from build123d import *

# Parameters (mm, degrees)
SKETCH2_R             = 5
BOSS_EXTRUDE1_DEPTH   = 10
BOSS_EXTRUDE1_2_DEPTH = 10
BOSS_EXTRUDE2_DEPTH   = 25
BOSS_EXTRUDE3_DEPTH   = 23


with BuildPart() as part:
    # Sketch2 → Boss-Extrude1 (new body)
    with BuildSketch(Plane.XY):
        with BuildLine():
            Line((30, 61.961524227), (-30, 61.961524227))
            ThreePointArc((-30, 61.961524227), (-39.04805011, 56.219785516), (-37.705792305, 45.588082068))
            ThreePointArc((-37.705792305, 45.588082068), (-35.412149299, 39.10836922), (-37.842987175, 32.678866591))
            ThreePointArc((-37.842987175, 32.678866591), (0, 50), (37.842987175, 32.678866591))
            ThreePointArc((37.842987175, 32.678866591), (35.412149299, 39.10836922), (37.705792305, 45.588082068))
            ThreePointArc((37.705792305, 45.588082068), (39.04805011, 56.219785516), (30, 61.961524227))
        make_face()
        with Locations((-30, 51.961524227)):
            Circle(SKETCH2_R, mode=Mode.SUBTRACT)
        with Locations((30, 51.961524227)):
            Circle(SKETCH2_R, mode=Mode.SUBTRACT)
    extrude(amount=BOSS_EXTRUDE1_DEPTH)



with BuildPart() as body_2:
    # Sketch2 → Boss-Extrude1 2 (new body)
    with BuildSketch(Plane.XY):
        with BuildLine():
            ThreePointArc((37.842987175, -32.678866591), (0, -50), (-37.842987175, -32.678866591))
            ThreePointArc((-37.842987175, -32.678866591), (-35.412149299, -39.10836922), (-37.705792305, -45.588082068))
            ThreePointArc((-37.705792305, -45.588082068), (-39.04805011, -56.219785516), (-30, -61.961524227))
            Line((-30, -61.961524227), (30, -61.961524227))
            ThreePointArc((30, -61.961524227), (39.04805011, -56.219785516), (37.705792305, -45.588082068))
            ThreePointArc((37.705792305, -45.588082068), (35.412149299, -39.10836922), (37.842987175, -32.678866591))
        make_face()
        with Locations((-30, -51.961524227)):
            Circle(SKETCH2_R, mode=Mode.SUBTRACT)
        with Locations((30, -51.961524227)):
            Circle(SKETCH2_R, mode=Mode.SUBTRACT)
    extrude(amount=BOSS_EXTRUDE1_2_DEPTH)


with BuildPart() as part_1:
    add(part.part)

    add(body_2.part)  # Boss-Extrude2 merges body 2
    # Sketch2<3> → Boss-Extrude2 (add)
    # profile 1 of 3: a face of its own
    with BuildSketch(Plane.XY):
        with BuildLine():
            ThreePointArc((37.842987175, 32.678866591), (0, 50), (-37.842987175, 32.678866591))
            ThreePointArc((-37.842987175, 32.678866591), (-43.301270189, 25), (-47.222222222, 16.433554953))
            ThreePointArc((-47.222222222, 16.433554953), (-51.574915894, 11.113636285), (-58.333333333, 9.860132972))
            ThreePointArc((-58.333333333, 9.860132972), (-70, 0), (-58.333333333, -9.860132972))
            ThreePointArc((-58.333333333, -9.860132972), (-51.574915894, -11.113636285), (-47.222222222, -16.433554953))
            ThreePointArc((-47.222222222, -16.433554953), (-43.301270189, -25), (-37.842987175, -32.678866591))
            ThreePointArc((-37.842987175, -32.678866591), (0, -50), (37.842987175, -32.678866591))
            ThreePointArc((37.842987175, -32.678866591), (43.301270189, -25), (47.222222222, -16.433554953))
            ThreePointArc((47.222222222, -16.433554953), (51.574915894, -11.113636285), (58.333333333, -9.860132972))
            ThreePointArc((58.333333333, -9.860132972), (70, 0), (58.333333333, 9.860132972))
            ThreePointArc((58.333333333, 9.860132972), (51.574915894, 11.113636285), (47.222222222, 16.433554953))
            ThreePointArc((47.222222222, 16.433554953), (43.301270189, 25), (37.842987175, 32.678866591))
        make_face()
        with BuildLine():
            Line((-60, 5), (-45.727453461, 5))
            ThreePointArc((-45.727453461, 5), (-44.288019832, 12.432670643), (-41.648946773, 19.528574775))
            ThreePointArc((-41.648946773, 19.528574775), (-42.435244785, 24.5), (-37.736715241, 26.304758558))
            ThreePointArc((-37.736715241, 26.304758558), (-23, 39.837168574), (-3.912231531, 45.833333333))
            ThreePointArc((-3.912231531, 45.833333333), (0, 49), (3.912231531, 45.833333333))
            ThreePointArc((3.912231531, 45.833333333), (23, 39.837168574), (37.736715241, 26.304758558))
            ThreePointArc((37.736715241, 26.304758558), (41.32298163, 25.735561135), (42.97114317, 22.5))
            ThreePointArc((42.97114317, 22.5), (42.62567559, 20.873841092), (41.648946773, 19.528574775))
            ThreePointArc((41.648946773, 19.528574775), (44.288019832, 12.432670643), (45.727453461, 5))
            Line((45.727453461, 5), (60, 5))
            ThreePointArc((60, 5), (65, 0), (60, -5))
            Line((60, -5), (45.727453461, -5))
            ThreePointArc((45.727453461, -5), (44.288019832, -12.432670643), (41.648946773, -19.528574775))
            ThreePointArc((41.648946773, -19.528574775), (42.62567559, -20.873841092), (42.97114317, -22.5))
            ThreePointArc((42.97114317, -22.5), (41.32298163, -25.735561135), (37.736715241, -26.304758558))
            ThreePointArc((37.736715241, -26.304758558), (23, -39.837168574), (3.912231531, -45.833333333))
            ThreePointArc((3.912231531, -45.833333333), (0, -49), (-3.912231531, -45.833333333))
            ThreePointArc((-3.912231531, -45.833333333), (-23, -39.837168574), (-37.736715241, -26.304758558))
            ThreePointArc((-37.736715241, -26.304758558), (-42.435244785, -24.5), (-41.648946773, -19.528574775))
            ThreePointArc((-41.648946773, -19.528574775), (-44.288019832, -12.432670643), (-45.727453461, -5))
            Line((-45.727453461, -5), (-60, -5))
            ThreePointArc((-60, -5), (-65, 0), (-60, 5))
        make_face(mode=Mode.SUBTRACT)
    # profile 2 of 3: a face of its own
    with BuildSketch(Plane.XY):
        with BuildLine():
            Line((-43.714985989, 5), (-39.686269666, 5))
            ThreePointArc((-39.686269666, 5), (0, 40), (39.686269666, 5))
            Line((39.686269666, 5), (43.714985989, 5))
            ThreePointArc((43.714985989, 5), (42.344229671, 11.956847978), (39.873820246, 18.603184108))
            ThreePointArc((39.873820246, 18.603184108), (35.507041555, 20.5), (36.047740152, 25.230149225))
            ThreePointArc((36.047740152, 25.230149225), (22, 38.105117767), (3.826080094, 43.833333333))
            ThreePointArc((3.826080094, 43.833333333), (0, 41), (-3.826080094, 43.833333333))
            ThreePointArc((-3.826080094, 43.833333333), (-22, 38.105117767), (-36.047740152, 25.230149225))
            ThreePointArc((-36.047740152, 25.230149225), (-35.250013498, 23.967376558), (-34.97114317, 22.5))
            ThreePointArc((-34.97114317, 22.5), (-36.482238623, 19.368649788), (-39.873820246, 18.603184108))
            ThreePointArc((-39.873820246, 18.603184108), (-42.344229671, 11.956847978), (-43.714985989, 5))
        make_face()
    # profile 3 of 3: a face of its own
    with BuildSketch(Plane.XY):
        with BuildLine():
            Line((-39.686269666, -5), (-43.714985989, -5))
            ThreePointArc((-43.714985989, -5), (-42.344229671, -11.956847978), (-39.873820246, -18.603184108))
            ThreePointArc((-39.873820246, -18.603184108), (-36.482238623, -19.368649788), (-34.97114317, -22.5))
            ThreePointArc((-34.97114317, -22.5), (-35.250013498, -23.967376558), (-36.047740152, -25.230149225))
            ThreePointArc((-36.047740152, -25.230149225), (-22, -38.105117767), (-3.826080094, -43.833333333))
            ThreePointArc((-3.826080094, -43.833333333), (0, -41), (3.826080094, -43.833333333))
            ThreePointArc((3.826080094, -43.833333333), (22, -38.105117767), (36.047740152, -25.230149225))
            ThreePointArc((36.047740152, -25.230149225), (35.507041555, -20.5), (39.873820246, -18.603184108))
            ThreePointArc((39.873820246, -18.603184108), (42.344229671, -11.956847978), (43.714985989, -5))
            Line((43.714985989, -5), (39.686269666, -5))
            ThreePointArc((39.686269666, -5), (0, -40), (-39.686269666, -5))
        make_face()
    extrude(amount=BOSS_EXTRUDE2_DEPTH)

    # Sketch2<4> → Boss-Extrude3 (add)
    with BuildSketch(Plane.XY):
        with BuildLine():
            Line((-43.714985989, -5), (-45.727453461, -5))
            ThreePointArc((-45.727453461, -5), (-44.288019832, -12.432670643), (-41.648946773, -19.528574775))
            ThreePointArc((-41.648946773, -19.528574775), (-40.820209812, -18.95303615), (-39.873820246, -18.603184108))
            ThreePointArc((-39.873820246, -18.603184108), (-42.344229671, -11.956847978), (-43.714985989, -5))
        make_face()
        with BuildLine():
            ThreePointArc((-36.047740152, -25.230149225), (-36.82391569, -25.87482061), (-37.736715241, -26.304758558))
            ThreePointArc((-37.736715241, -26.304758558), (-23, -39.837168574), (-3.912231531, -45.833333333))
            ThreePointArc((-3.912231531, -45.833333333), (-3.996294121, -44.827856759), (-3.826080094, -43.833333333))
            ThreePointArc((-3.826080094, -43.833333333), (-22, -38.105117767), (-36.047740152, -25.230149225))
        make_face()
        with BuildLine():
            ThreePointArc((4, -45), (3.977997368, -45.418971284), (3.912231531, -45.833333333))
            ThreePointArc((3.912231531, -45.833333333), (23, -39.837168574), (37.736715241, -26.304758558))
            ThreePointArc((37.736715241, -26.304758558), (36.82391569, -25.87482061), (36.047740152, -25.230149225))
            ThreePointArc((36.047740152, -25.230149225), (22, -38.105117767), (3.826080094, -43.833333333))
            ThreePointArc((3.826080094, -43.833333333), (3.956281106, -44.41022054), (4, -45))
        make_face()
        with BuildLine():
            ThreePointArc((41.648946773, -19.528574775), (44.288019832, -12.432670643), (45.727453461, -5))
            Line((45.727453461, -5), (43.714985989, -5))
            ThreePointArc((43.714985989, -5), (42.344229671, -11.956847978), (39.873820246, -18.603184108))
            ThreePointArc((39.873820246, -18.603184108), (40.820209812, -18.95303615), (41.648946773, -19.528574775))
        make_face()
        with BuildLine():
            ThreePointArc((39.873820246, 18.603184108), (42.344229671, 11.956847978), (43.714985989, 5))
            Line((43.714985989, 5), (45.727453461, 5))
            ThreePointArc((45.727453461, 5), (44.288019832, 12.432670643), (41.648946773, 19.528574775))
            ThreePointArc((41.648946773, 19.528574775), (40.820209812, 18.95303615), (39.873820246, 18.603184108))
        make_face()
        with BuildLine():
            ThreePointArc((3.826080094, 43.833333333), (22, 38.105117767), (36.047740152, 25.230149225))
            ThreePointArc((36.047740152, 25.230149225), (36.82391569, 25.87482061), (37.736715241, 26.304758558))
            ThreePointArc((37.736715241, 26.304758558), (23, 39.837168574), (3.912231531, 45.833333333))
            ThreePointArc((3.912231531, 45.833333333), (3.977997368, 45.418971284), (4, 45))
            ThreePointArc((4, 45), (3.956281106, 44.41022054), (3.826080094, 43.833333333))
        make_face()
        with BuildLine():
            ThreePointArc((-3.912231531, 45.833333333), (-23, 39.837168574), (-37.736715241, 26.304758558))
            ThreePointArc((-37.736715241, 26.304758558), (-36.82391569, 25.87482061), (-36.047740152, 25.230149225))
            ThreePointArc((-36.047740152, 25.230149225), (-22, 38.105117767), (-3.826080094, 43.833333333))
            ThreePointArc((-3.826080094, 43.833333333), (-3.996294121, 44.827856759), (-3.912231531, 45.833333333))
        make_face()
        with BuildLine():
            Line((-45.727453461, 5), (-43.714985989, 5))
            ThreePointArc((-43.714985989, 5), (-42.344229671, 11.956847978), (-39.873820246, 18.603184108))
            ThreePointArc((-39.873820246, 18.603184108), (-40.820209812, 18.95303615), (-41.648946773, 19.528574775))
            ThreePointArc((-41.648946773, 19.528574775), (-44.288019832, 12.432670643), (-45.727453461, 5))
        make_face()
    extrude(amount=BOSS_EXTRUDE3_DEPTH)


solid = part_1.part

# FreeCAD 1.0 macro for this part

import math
import FreeCAD as App
import Part
import Sketcher
from FreeCAD import Vector

doc = App.newDocument("Part")
body = doc.addObject("PartDesign::Body", "Body")

sketch1 = body.newObject("Sketcher::SketchObject", "Sketch")
sketch1.AttachmentSupport = (doc.getObject("XY_Plane"), [""])
sketch1.MapMode = "FlatFace"
sketch1.addGeometry(Part.LineSegment(Vector(30, 62, 0), Vector(-30, 62, 0)), False)
sketch1.addGeometry(Part.ArcOfCircle(Part.Circle(Vector(-30, 52, 0), Vector(0, 0, 1), 10), math.radians(90), math.radians(220)), False)
sketch1.addGeometry(Part.ArcOfCircle(Part.Circle(Vector(-45, 39, 0), Vector(0, 0, 1), 10), math.radians(-41), math.radians(40)), False)
sketch1.addGeometry(Part.ArcOfCircle(Part.Circle(Vector(0, 0, 0), Vector(0, 0, 1), 50), math.radians(41), math.radians(139)), False)
sketch1.addGeometry(Part.ArcOfCircle(Part.Circle(Vector(45, 39, 0), Vector(0, 0, 1), 10), math.radians(140), math.radians(221)), False)
sketch1.addGeometry(Part.ArcOfCircle(Part.Circle(Vector(30, 52, 0), Vector(0, 0, 1), 10), math.radians(-40), math.radians(90)), False)
sketch1.addGeometry(Part.Circle(Vector(-30, 52, 0), Vector(0, 0, 1), 5), False)
sketch1.addGeometry(Part.Circle(Vector(30, 52, 0), Vector(0, 0, 1), 5), False)
sketch1.addConstraint(Sketcher.Constraint("Tangent", 0, 2, 1, 1))
sketch1.addConstraint(Sketcher.Constraint("Tangent", 1, 2, 2, 2))
sketch1.addConstraint(Sketcher.Constraint("Tangent", 2, 1, 3, 2))
sketch1.addConstraint(Sketcher.Constraint("Tangent", 3, 1, 4, 2))
sketch1.addConstraint(Sketcher.Constraint("Tangent", 4, 1, 5, 1))
sketch1.addConstraint(Sketcher.Constraint("Tangent", 5, 2, 0, 1))
sketch1.addConstraint(Sketcher.Constraint("Horizontal", 0))
sketch1.addConstraint(Sketcher.Constraint("Coincident", 3, 3, -1, 1))
sketch1.addConstraint(Sketcher.Constraint("Coincident", 6, 3, 1, 3))
sketch1.addConstraint(Sketcher.Constraint("Coincident", 7, 3, 5, 3))
sketch1.addConstraint(Sketcher.Constraint("Equal", 1, 2))
sketch1.addConstraint(Sketcher.Constraint("Equal", 2, 4))
sketch1.addConstraint(Sketcher.Constraint("Equal", 4, 5))
sketch1.addConstraint(Sketcher.Constraint("Equal", 6, 7))
sketch1.addConstraint(Sketcher.Constraint("Horizontal", 2, 3, 4, 3))
sketch1.addConstraint(Sketcher.Constraint("Diameter", 6, 10.0))
sketch1.addConstraint(Sketcher.Constraint("Radius", 1, 10.0))
sketch1.addConstraint(Sketcher.Constraint("Radius", 3, 50.0))
sketch1.addConstraint(Sketcher.Constraint("DistanceX", 0, 2, 0, 1, 60.0))
sketch1.addConstraint(Sketcher.Constraint("DistanceY", -1, 1, 2, 3, 39.21464))
pad1 = body.newObject("PartDesign::Pad", "Pad")
pad1.Profile = sketch1
pad1.Length = 10
body2 = doc.addObject("PartDesign::Body", "Body001")

sketch2 = body2.newObject("Sketcher::SketchObject", "Sketch001")
sketch2.AttachmentSupport = (doc.getObject("XY_Plane001"), [""])
sketch2.MapMode = "FlatFace"
sketch2.addGeometry(Part.ArcOfCircle(Part.Circle(Vector(0, 0, 0), Vector(0, 0, 1), 50), math.radians(-139), math.radians(-41)), False)
sketch2.addGeometry(Part.ArcOfCircle(Part.Circle(Vector(-45, -39, 0), Vector(0, 0, 1), 10), math.radians(-40), math.radians(41)), False)
sketch2.addGeometry(Part.ArcOfCircle(Part.Circle(Vector(-30, -52, 0), Vector(0, 0, 1), 10), math.radians(140), math.radians(270)), False)
sketch2.addGeometry(Part.LineSegment(Vector(-30, -62, 0), Vector(30, -62, 0)), False)
sketch2.addGeometry(Part.ArcOfCircle(Part.Circle(Vector(30, -52, 0), Vector(0, 0, 1), 10), math.radians(-90), math.radians(40)), False)
sketch2.addGeometry(Part.ArcOfCircle(Part.Circle(Vector(45, -39, 0), Vector(0, 0, 1), 10), math.radians(139), math.radians(220)), False)
sketch2.addGeometry(Part.Circle(Vector(-30, -52, 0), Vector(0, 0, 1), 5), False)
sketch2.addGeometry(Part.Circle(Vector(30, -52, 0), Vector(0, 0, 1), 5), False)
sketch2.addConstraint(Sketcher.Constraint("Tangent", 0, 1, 1, 2))
sketch2.addConstraint(Sketcher.Constraint("Tangent", 1, 1, 2, 1))
sketch2.addConstraint(Sketcher.Constraint("Tangent", 2, 2, 3, 1))
sketch2.addConstraint(Sketcher.Constraint("Tangent", 3, 2, 4, 1))
sketch2.addConstraint(Sketcher.Constraint("Tangent", 4, 2, 5, 2))
sketch2.addConstraint(Sketcher.Constraint("Tangent", 5, 1, 0, 2))
sketch2.addConstraint(Sketcher.Constraint("Horizontal", 3))
sketch2.addConstraint(Sketcher.Constraint("Coincident", 0, 3, -1, 1))
sketch2.addConstraint(Sketcher.Constraint("Coincident", 6, 3, 2, 3))
sketch2.addConstraint(Sketcher.Constraint("Coincident", 7, 3, 4, 3))
sketch2.addConstraint(Sketcher.Constraint("Equal", 1, 2))
sketch2.addConstraint(Sketcher.Constraint("Equal", 2, 4))
sketch2.addConstraint(Sketcher.Constraint("Equal", 4, 5))
sketch2.addConstraint(Sketcher.Constraint("Equal", 6, 7))
sketch2.addConstraint(Sketcher.Constraint("Horizontal", 1, 3, 5, 3))
sketch2.addConstraint(Sketcher.Constraint("Diameter", 6, 10.0))
sketch2.addConstraint(Sketcher.Constraint("Radius", 0, 50.0))
sketch2.addConstraint(Sketcher.Constraint("Radius", 1, 10.0))
sketch2.addConstraint(Sketcher.Constraint("DistanceX", 3, 1, 3, 2, 60.0))
sketch2.addConstraint(Sketcher.Constraint("DistanceY", 1, 3, -1, 1, 39.21464))
pad2 = body2.newObject("PartDesign::Pad", "Pad001")
pad2.Profile = sketch2
pad2.Length = 10
body.AllowCompound = True
doc.recompute()

boolean = body.newObject("PartDesign::Boolean", "Boolean")
boolean.Type = "Fuse"
boolean.addObjects([body2])

sketch3 = body.newObject("Sketcher::SketchObject", "Sketch002")
sketch3.AttachmentSupport = (doc.getObject("XY_Plane"), [""])
sketch3.MapMode = "FlatFace"
sketch3.addGeometry(Part.ArcOfCircle(Part.Circle(Vector(0, 0, 0), Vector(0, 0, 1), 50), math.radians(41), math.radians(139)), False)
sketch3.addGeometry(Part.ArcOfCircle(Part.Circle(Vector(0, 0, 0), Vector(0, 0, 1), 50), math.radians(139), math.radians(161)), False)
sketch3.addGeometry(Part.ArcOfCircle(Part.Circle(Vector(-56.7, 19.7, 0), Vector(0, 0, 1), 10), math.radians(-100), math.radians(-19)), False)
sketch3.addGeometry(Part.ArcOfCircle(Part.Circle(Vector(-60, 0, 0), Vector(0, 0, 1), 10), math.radians(80), math.radians(280)), False)
sketch3.addGeometry(Part.ArcOfCircle(Part.Circle(Vector(-56.7, -19.7, 0), Vector(0, 0, 1), 10), math.radians(19), math.radians(100)), False)
sketch3.addGeometry(Part.ArcOfCircle(Part.Circle(Vector(0, 0, 0), Vector(0, 0, 1), 50), math.radians(-161), math.radians(-139)), False)
sketch3.addGeometry(Part.ArcOfCircle(Part.Circle(Vector(0, 0, 0), Vector(0, 0, 1), 50), math.radians(-139), math.radians(-41)), False)
sketch3.addGeometry(Part.ArcOfCircle(Part.Circle(Vector(0, 0, 0), Vector(0, 0, 1), 50), math.radians(-41), math.radians(-19)), False)
sketch3.addGeometry(Part.ArcOfCircle(Part.Circle(Vector(56.7, -19.7, 0), Vector(0, 0, 1), 10), math.radians(80), math.radians(161)), False)
sketch3.addGeometry(Part.ArcOfCircle(Part.Circle(Vector(60, 0, 0), Vector(0, 0, 1), 10), math.radians(-100), math.radians(100)), False)
sketch3.addGeometry(Part.ArcOfCircle(Part.Circle(Vector(56.7, 19.7, 0), Vector(0, 0, 1), 10), math.radians(-161), math.radians(-80)), False)
sketch3.addGeometry(Part.ArcOfCircle(Part.Circle(Vector(0, 0, 0), Vector(0, 0, 1), 50), math.radians(19), math.radians(41)), False)
sketch3.addGeometry(Part.ArcOfCircle(Part.Circle(Vector(-60, 0, 0), Vector(0, 0, 1), 5), math.radians(90), math.radians(270)), False)
sketch3.addGeometry(Part.LineSegment(Vector(-60, 5, 0), Vector(-45.7, 5, 0)), False)
sketch3.addGeometry(Part.ArcOfCircle(Part.Circle(Vector(0, 0, 0), Vector(0, 0, 1), 46), math.radians(154.88), math.radians(173.76)), False)
sketch3.addGeometry(Part.ArcOfCircle(Part.Circle(Vector(-39, 22.5, 0), Vector(0, 0, 1), 4), math.radians(72), math.radians(228)), False)
sketch3.addGeometry(Part.ArcOfCircle(Part.Circle(Vector(0, 0, 0), Vector(0, 0, 1), 46), math.radians(95), math.radians(145)), False)
sketch3.addGeometry(Part.ArcOfCircle(Part.Circle(Vector(0, 45, 0), Vector(0, 0, 1), 4), math.radians(12), math.radians(168)), False)
sketch3.addGeometry(Part.ArcOfCircle(Part.Circle(Vector(0, 0, 0), Vector(0, 0, 1), 46), math.radians(35), math.radians(85)), False)
sketch3.addGeometry(Part.ArcOfCircle(Part.Circle(Vector(39, 22.5, 0), Vector(0, 0, 1), 4), math.radians(0), math.radians(108)), False)
sketch3.addGeometry(Part.ArcOfCircle(Part.Circle(Vector(39, 22.5, 0), Vector(0, 0, 1), 4), math.radians(-48), math.radians(0)), False)
sketch3.addGeometry(Part.ArcOfCircle(Part.Circle(Vector(0, 0, 0), Vector(0, 0, 1), 46), math.radians(6.24), math.radians(25.12)), False)
sketch3.addGeometry(Part.LineSegment(Vector(45.7, 5, 0), Vector(60, 5, 0)), False)
sketch3.addGeometry(Part.ArcOfCircle(Part.Circle(Vector(60, 0, 0), Vector(0, 0, 1), 5), math.radians(-90), math.radians(90)), False)
sketch3.addGeometry(Part.LineSegment(Vector(60, -5, 0), Vector(45.7, -5, 0)), False)
sketch3.addGeometry(Part.ArcOfCircle(Part.Circle(Vector(0, 0, 0), Vector(0, 0, 1), 46), math.radians(-25.12), math.radians(-6.24)), False)
sketch3.addGeometry(Part.ArcOfCircle(Part.Circle(Vector(39, -22.5, 0), Vector(0, 0, 1), 4), math.radians(0), math.radians(48)), False)
sketch3.addGeometry(Part.ArcOfCircle(Part.Circle(Vector(39, -22.5, 0), Vector(0, 0, 1), 4), math.radians(-108), math.radians(0)), False)
sketch3.addGeometry(Part.ArcOfCircle(Part.Circle(Vector(0, 0, 0), Vector(0, 0, 1), 46), math.radians(-85), math.radians(-35)), False)
sketch3.addGeometry(Part.ArcOfCircle(Part.Circle(Vector(0, -45, 0), Vector(0, 0, 1), 4), math.radians(-168), math.radians(-12)), False)
sketch3.addGeometry(Part.ArcOfCircle(Part.Circle(Vector(0, 0, 0), Vector(0, 0, 1), 46), math.radians(-145), math.radians(-95)), False)
sketch3.addGeometry(Part.ArcOfCircle(Part.Circle(Vector(-39, -22.5, 0), Vector(0, 0, 1), 4), math.radians(132), math.radians(288)), False)
sketch3.addGeometry(Part.ArcOfCircle(Part.Circle(Vector(0, 0, 0), Vector(0, 0, 1), 46), math.radians(-173.76), math.radians(-154.88)), False)
sketch3.addGeometry(Part.LineSegment(Vector(-45.7, -5, 0), Vector(-60, -5, 0)), False)
sketch3.addGeometry(Part.LineSegment(Vector(-43.7, 5, 0), Vector(-39.7, 5, 0)), False)
sketch3.addGeometry(Part.ArcOfCircle(Part.Circle(Vector(0, 0, 0), Vector(0, 0, 1), 40), math.radians(7), math.radians(173)), False)
sketch3.addGeometry(Part.LineSegment(Vector(39.7, 5, 0), Vector(43.7, 5, 0)), False)
sketch3.addGeometry(Part.ArcOfCircle(Part.Circle(Vector(0, 0, 0), Vector(0, 0, 1), 44), math.radians(6.52), math.radians(25.01)), False)
sketch3.addGeometry(Part.ArcOfCircle(Part.Circle(Vector(39, 22.5, 0), Vector(0, 0, 1), 4), math.radians(137), math.radians(283)), False)
sketch3.addGeometry(Part.ArcOfCircle(Part.Circle(Vector(0, 0, 0), Vector(0, 0, 1), 44), math.radians(35), math.radians(85)), False)
sketch3.addGeometry(Part.ArcOfCircle(Part.Circle(Vector(0, 45, 0), Vector(0, 0, 1), 4), math.radians(-163), math.radians(-17)), False)
sketch3.addGeometry(Part.ArcOfCircle(Part.Circle(Vector(0, 0, 0), Vector(0, 0, 1), 44), math.radians(95), math.radians(145)), False)
sketch3.addGeometry(Part.ArcOfCircle(Part.Circle(Vector(-39, 22.5, 0), Vector(0, 0, 1), 4), math.radians(0), math.radians(43)), False)
sketch3.addGeometry(Part.ArcOfCircle(Part.Circle(Vector(-39, 22.5, 0), Vector(0, 0, 1), 4), math.radians(-103), math.radians(0)), False)
sketch3.addGeometry(Part.ArcOfCircle(Part.Circle(Vector(0, 0, 0), Vector(0, 0, 1), 44), math.radians(154.99), math.radians(173.48)), False)
sketch3.addGeometry(Part.LineSegment(Vector(-39.7, -5, 0), Vector(-43.7, -5, 0)), False)
sketch3.addGeometry(Part.ArcOfCircle(Part.Circle(Vector(0, 0, 0), Vector(0, 0, 1), 44), math.radians(-173.48), math.radians(-154.99)), False)
sketch3.addGeometry(Part.ArcOfCircle(Part.Circle(Vector(-39, -22.5, 0), Vector(0, 0, 1), 4), math.radians(0), math.radians(103)), False)
sketch3.addGeometry(Part.ArcOfCircle(Part.Circle(Vector(-39, -22.5, 0), Vector(0, 0, 1), 4), math.radians(-43), math.radians(0)), False)
sketch3.addGeometry(Part.ArcOfCircle(Part.Circle(Vector(0, 0, 0), Vector(0, 0, 1), 44), math.radians(-145), math.radians(-95)), False)
sketch3.addGeometry(Part.ArcOfCircle(Part.Circle(Vector(0, -45, 0), Vector(0, 0, 1), 4), math.radians(17), math.radians(163)), False)
sketch3.addGeometry(Part.ArcOfCircle(Part.Circle(Vector(0, 0, 0), Vector(0, 0, 1), 44), math.radians(-85), math.radians(-35)), False)
sketch3.addGeometry(Part.ArcOfCircle(Part.Circle(Vector(39, -22.5, 0), Vector(0, 0, 1), 4), math.radians(77), math.radians(223)), False)
sketch3.addGeometry(Part.ArcOfCircle(Part.Circle(Vector(0, 0, 0), Vector(0, 0, 1), 44), math.radians(-25.01), math.radians(-6.52)), False)
sketch3.addGeometry(Part.LineSegment(Vector(43.7, -5, 0), Vector(39.7, -5, 0)), False)
sketch3.addGeometry(Part.ArcOfCircle(Part.Circle(Vector(0, 0, 0), Vector(0, 0, 1), 40), math.radians(-173), math.radians(-7)), False)
sketch3.addConstraint(Sketcher.Constraint("Tangent", 0, 2, 1, 1))
sketch3.addConstraint(Sketcher.Constraint("Tangent", 1, 2, 2, 2))
sketch3.addConstraint(Sketcher.Constraint("Tangent", 2, 1, 3, 1))
sketch3.addConstraint(Sketcher.Constraint("Tangent", 3, 2, 4, 2))
sketch3.addConstraint(Sketcher.Constraint("Tangent", 4, 1, 5, 1))
sketch3.addConstraint(Sketcher.Constraint("Tangent", 5, 2, 6, 1))
sketch3.addConstraint(Sketcher.Constraint("Tangent", 6, 2, 7, 1))
sketch3.addConstraint(Sketcher.Constraint("Tangent", 7, 2, 8, 2))
sketch3.addConstraint(Sketcher.Constraint("Tangent", 8, 1, 9, 1))
sketch3.addConstraint(Sketcher.Constraint("Tangent", 9, 2, 10, 2))
sketch3.addConstraint(Sketcher.Constraint("Tangent", 10, 1, 11, 1))
sketch3.addConstraint(Sketcher.Constraint("Tangent", 11, 2, 0, 1))
sketch3.addConstraint(Sketcher.Constraint("Tangent", 12, 1, 13, 1))
sketch3.addConstraint(Sketcher.Constraint("Coincident", 13, 2, 14, 2))
sketch3.addConstraint(Sketcher.Constraint("Coincident", 14, 1, 15, 2))
sketch3.addConstraint(Sketcher.Constraint("Coincident", 15, 1, 16, 2))
sketch3.addConstraint(Sketcher.Constraint("Coincident", 16, 1, 17, 2))
sketch3.addConstraint(Sketcher.Constraint("Coincident", 17, 1, 18, 2))
sketch3.addConstraint(Sketcher.Constraint("Coincident", 18, 1, 19, 2))
sketch3.addConstraint(Sketcher.Constraint("Tangent", 19, 1, 20, 2))
sketch3.addConstraint(Sketcher.Constraint("Coincident", 20, 1, 21, 2))
sketch3.addConstraint(Sketcher.Constraint("Coincident", 21, 1, 22, 1))
sketch3.addConstraint(Sketcher.Constraint("Tangent", 22, 2, 23, 2))
sketch3.addConstraint(Sketcher.Constraint("Tangent", 23, 1, 24, 1))
sketch3.addConstraint(Sketcher.Constraint("Coincident", 24, 2, 25, 2))
sketch3.addConstraint(Sketcher.Constraint("Coincident", 25, 1, 26, 2))
sketch3.addConstraint(Sketcher.Constraint("Tangent", 26, 1, 27, 2))
sketch3.addConstraint(Sketcher.Constraint("Coincident", 27, 1, 28, 2))
sketch3.addConstraint(Sketcher.Constraint("Coincident", 28, 1, 29, 2))
sketch3.addConstraint(Sketcher.Constraint("Coincident", 29, 1, 30, 2))
sketch3.addConstraint(Sketcher.Constraint("Coincident", 30, 1, 31, 2))
sketch3.addConstraint(Sketcher.Constraint("Coincident", 31, 1, 32, 2))
sketch3.addConstraint(Sketcher.Constraint("Coincident", 32, 1, 33, 1))
sketch3.addConstraint(Sketcher.Constraint("Tangent", 33, 2, 12, 2))
sketch3.addConstraint(Sketcher.Constraint("Coincident", 34, 2, 35, 2))
sketch3.addConstraint(Sketcher.Constraint("Coincident", 35, 1, 36, 1))
sketch3.addConstraint(Sketcher.Constraint("Coincident", 36, 2, 37, 1))
sketch3.addConstraint(Sketcher.Constraint("Coincident", 37, 2, 38, 2))
sketch3.addConstraint(Sketcher.Constraint("Coincident", 38, 1, 39, 1))
sketch3.addConstraint(Sketcher.Constraint("Coincident", 39, 2, 40, 2))
sketch3.addConstraint(Sketcher.Constraint("Coincident", 40, 1, 41, 1))
sketch3.addConstraint(Sketcher.Constraint("Coincident", 41, 2, 42, 2))
sketch3.addConstraint(Sketcher.Constraint("Tangent", 42, 1, 43, 2))
sketch3.addConstraint(Sketcher.Constraint("Coincident", 43, 1, 44, 1))
sketch3.addConstraint(Sketcher.Constraint("Coincident", 44, 2, 34, 1))
sketch3.addConstraint(Sketcher.Constraint("Coincident", 45, 2, 46, 1))
sketch3.addConstraint(Sketcher.Constraint("Coincident", 46, 2, 47, 2))
sketch3.addConstraint(Sketcher.Constraint("Tangent", 47, 1, 48, 2))
sketch3.addConstraint(Sketcher.Constraint("Coincident", 48, 1, 49, 1))
sketch3.addConstraint(Sketcher.Constraint("Coincident", 49, 2, 50, 2))
sketch3.addConstraint(Sketcher.Constraint("Coincident", 50, 1, 51, 1))
sketch3.addConstraint(Sketcher.Constraint("Coincident", 51, 2, 52, 2))
sketch3.addConstraint(Sketcher.Constraint("Coincident", 52, 1, 53, 1))
sketch3.addConstraint(Sketcher.Constraint("Coincident", 53, 2, 54, 1))
sketch3.addConstraint(Sketcher.Constraint("Coincident", 54, 2, 55, 2))
sketch3.addConstraint(Sketcher.Constraint("Coincident", 55, 1, 45, 1))
sketch3.addConstraint(Sketcher.Constraint("Horizontal", 13))
sketch3.addConstraint(Sketcher.Constraint("Horizontal", 22))
sketch3.addConstraint(Sketcher.Constraint("Horizontal", 24))
sketch3.addConstraint(Sketcher.Constraint("Horizontal", 33))
sketch3.addConstraint(Sketcher.Constraint("Horizontal", 34))
sketch3.addConstraint(Sketcher.Constraint("Horizontal", 36))
sketch3.addConstraint(Sketcher.Constraint("Horizontal", 45))
sketch3.addConstraint(Sketcher.Constraint("Horizontal", 54))
sketch3.addConstraint(Sketcher.Constraint("Coincident", 0, 3, -1, 1))
sketch3.addConstraint(Sketcher.Constraint("Coincident", 5, 3, -1, 1))
sketch3.addConstraint(Sketcher.Constraint("Coincident", 7, 3, -1, 1))
sketch3.addConstraint(Sketcher.Constraint("Coincident", 14, 3, -1, 1))
sketch3.addConstraint(Sketcher.Constraint("Coincident", 16, 3, -1, 1))
sketch3.addConstraint(Sketcher.Constraint("Coincident", 18, 3, -1, 1))
sketch3.addConstraint(Sketcher.Constraint("Coincident", 21, 3, -1, 1))
sketch3.addConstraint(Sketcher.Constraint("Coincident", 25, 3, -1, 1))
sketch3.addConstraint(Sketcher.Constraint("Coincident", 28, 3, -1, 1))
sketch3.addConstraint(Sketcher.Constraint("Coincident", 30, 3, -1, 1))
sketch3.addConstraint(Sketcher.Constraint("Coincident", 32, 3, -1, 1))
sketch3.addConstraint(Sketcher.Constraint("Coincident", 35, 3, -1, 1))
sketch3.addConstraint(Sketcher.Constraint("Coincident", 37, 3, -1, 1))
sketch3.addConstraint(Sketcher.Constraint("Coincident", 39, 3, -1, 1))
sketch3.addConstraint(Sketcher.Constraint("Coincident", 41, 3, -1, 1))
sketch3.addConstraint(Sketcher.Constraint("Coincident", 44, 3, -1, 1))
sketch3.addConstraint(Sketcher.Constraint("Coincident", 46, 3, -1, 1))
sketch3.addConstraint(Sketcher.Constraint("Coincident", 49, 3, -1, 1))
sketch3.addConstraint(Sketcher.Constraint("Coincident", 51, 3, -1, 1))
sketch3.addConstraint(Sketcher.Constraint("Coincident", 53, 3, -1, 1))
sketch3.addConstraint(Sketcher.Constraint("Coincident", 55, 3, -1, 1))
sketch3.addConstraint(Sketcher.Constraint("Coincident", 12, 3, 3, 3))
sketch3.addConstraint(Sketcher.Constraint("Coincident", 23, 3, 9, 3))
sketch3.addConstraint(Sketcher.Constraint("Coincident", 38, 3, 19, 3))
sketch3.addConstraint(Sketcher.Constraint("Coincident", 40, 3, 17, 3))
sketch3.addConstraint(Sketcher.Constraint("Coincident", 42, 3, 15, 3))
sketch3.addConstraint(Sketcher.Constraint("Coincident", 47, 3, 31, 3))
sketch3.addConstraint(Sketcher.Constraint("Coincident", 50, 3, 29, 3))
sketch3.addConstraint(Sketcher.Constraint("Coincident", 52, 3, 26, 3))
sketch3.addConstraint(Sketcher.Constraint("Equal", 0, 1))
sketch3.addConstraint(Sketcher.Constraint("Equal", 2, 3))
sketch3.addConstraint(Sketcher.Constraint("Equal", 3, 4))
sketch3.addConstraint(Sketcher.Constraint("Equal", 1, 5))
sketch3.addConstraint(Sketcher.Constraint("Equal", 4, 8))
sketch3.addConstraint(Sketcher.Constraint("Equal", 8, 9))
sketch3.addConstraint(Sketcher.Constraint("Equal", 9, 10))
sketch3.addConstraint(Sketcher.Constraint("Equal", 7, 11))
sketch3.addConstraint(Sketcher.Constraint("Equal", 14, 16))
sketch3.addConstraint(Sketcher.Constraint("Equal", 15, 17))
sketch3.addConstraint(Sketcher.Constraint("Equal", 16, 18))
sketch3.addConstraint(Sketcher.Constraint("Equal", 17, 19))
sketch3.addConstraint(Sketcher.Constraint("Equal", 19, 20))
sketch3.addConstraint(Sketcher.Constraint("Equal", 18, 21))
sketch3.addConstraint(Sketcher.Constraint("Equal", 12, 23))
sketch3.addConstraint(Sketcher.Constraint("Equal", 21, 25))
sketch3.addConstraint(Sketcher.Constraint("Equal", 20, 26))
sketch3.addConstraint(Sketcher.Constraint("Equal", 26, 27))
sketch3.addConstraint(Sketcher.Constraint("Equal", 25, 28))
sketch3.addConstraint(Sketcher.Constraint("Equal", 27, 29))
sketch3.addConstraint(Sketcher.Constraint("Equal", 28, 30))
sketch3.addConstraint(Sketcher.Constraint("Equal", 29, 31))
sketch3.addConstraint(Sketcher.Constraint("Equal", 30, 32))
sketch3.addConstraint(Sketcher.Constraint("Equal", 31, 38))
sketch3.addConstraint(Sketcher.Constraint("Equal", 37, 39))
sketch3.addConstraint(Sketcher.Constraint("Equal", 38, 40))
sketch3.addConstraint(Sketcher.Constraint("Equal", 39, 41))
sketch3.addConstraint(Sketcher.Constraint("Equal", 40, 42))
sketch3.addConstraint(Sketcher.Constraint("Equal", 42, 43))
sketch3.addConstraint(Sketcher.Constraint("Equal", 41, 44))
sketch3.addConstraint(Sketcher.Constraint("Equal", 44, 46))
sketch3.addConstraint(Sketcher.Constraint("Equal", 43, 47))
sketch3.addConstraint(Sketcher.Constraint("Equal", 47, 48))
sketch3.addConstraint(Sketcher.Constraint("Equal", 46, 49))
sketch3.addConstraint(Sketcher.Constraint("Equal", 48, 50))
sketch3.addConstraint(Sketcher.Constraint("Equal", 49, 51))
sketch3.addConstraint(Sketcher.Constraint("Equal", 50, 52))
sketch3.addConstraint(Sketcher.Constraint("Equal", 51, 53))
sketch3.addConstraint(Sketcher.Constraint("Equal", 35, 55))
sketch3.addConstraint(Sketcher.Constraint("Symmetric", 3, 3, 9, 3, -1, 1))
sketch3.addConstraint(Sketcher.Constraint("Symmetric", 15, 3, 26, 3, -1, 1))
sketch3.addConstraint(Sketcher.Constraint("Symmetric", 17, 3, 29, 3, -1, 1))
sketch3.addConstraint(Sketcher.Constraint("Symmetric", 19, 3, 31, 3, -1, 1))
sketch3.addConstraint(Sketcher.Constraint("Symmetric", 15, 3, 19, 3, -2))
sketch3.addConstraint(Sketcher.Constraint("PointOnObject", 3, 3, -1))
sketch3.addConstraint(Sketcher.Constraint("PointOnObject", 17, 3, -2))
sketch3.addConstraint(Sketcher.Constraint("Horizontal", 5, 2, 6, 2))
sketch3.addConstraint(Sketcher.Constraint("Horizontal", 0, 2, 11, 2))
sketch3.addConstraint(Sketcher.Constraint("Horizontal", 43, 3, 19, 1))
sketch3.addConstraint(Sketcher.Constraint("Horizontal", 52, 3, 26, 1))
sketch3.addConstraint(Sketcher.Constraint("Horizontal", 22, 2, 34, 2))
sketch3.addConstraint(Sketcher.Constraint("Horizontal", 34, 2, 35, 1))
sketch3.addConstraint(Sketcher.Constraint("Horizontal", 19, 1, 42, 1))
sketch3.addConstraint(Sketcher.Constraint("Horizontal", 33, 2, 45, 2))
sketch3.addConstraint(Sketcher.Constraint("Horizontal", 26, 1, 47, 1))
sketch3.addConstraint(Sketcher.Constraint("Horizontal", 45, 2, 53, 2))
sketch3.addConstraint(Sketcher.Constraint("Vertical", 0, 2, 5, 2))
sketch3.addConstraint(Sketcher.Constraint("Radius", 0, 50.0))
sketch3.addConstraint(Sketcher.Constraint("Radius", 2, 10.0))
sketch3.addConstraint(Sketcher.Constraint("Radius", 12, 5.0))
sketch3.addConstraint(Sketcher.Constraint("Radius", 14, 46.0))
sketch3.addConstraint(Sketcher.Constraint("Radius", 15, 4.0))
sketch3.addConstraint(Sketcher.Constraint("Radius", 35, 40.0))
sketch3.addConstraint(Sketcher.Constraint("Radius", 37, 44.0))
sketch3.addConstraint(Sketcher.Constraint("DistanceX", 3, 3, -1, 1, 60.0))
sketch3.addConstraint(Sketcher.Constraint("DistanceY", -1, 1, 17, 3, 45.0))
sketch3.addConstraint(Sketcher.Constraint("DistanceY", -1, 1, 15, 3, 22.5))
sketch3.addConstraint(Sketcher.Constraint("DistanceY", -1, 1, 15, 1, 26.304759))
sketch3.addConstraint(Sketcher.Constraint("DistanceX", 0, 2, -1, 1, 37.842987))
pad3 = body.newObject("PartDesign::Pad", "Pad002")
pad3.Profile = sketch3
pad3.Length = 25

sketch4 = body.newObject("Sketcher::SketchObject", "Sketch003")
sketch4.AttachmentSupport = (doc.getObject("XY_Plane"), [""])
sketch4.MapMode = "FlatFace"
sketch4.addGeometry(Part.LineSegment(Vector(-43.7, -5, 0), Vector(-45.7, -5, 0)), False)
sketch4.addGeometry(Part.ArcOfCircle(Part.Circle(Vector(0, 0, 0), Vector(0, 0, 1), 46), math.radians(-173.76), math.radians(-154.88)), False)
sketch4.addGeometry(Part.ArcOfCircle(Part.Circle(Vector(-39, -22.5, 0), Vector(0, 0, 1), 4), math.radians(103), math.radians(132)), False)
sketch4.addGeometry(Part.ArcOfCircle(Part.Circle(Vector(0, 0, 0), Vector(0, 0, 1), 44), math.radians(-173.48), math.radians(-154.99)), False)
sketch4.addGeometry(Part.ArcOfCircle(Part.Circle(Vector(-39, -22.5, 0), Vector(0, 0, 1), 4), math.radians(-72), math.radians(-43)), False)
sketch4.addGeometry(Part.ArcOfCircle(Part.Circle(Vector(0, 0, 0), Vector(0, 0, 1), 46), math.radians(-145), math.radians(-95)), False)
sketch4.addGeometry(Part.ArcOfCircle(Part.Circle(Vector(0, -45, 0), Vector(0, 0, 1), 4), math.radians(163), math.radians(192)), False)
sketch4.addGeometry(Part.ArcOfCircle(Part.Circle(Vector(0, 0, 0), Vector(0, 0, 1), 44), math.radians(-145), math.radians(-95)), False)
sketch4.addGeometry(Part.ArcOfCircle(Part.Circle(Vector(0, -45, 0), Vector(0, 0, 1), 4), math.radians(-12.02), math.radians(0)), False)
sketch4.addGeometry(Part.ArcOfCircle(Part.Circle(Vector(0, 0, 0), Vector(0, 0, 1), 46), math.radians(-85), math.radians(-35)), False)
sketch4.addGeometry(Part.ArcOfCircle(Part.Circle(Vector(39, -22.5, 0), Vector(0, 0, 1), 4), math.radians(-137), math.radians(-108)), False)
sketch4.addGeometry(Part.ArcOfCircle(Part.Circle(Vector(0, 0, 0), Vector(0, 0, 1), 44), math.radians(-85), math.radians(-35)), False)
sketch4.addGeometry(Part.ArcOfCircle(Part.Circle(Vector(0, -45, 0), Vector(0, 0, 1), 4), math.radians(0), math.radians(16.96)), False)
sketch4.addGeometry(Part.ArcOfCircle(Part.Circle(Vector(0, 0, 0), Vector(0, 0, 1), 46), math.radians(-25.12), math.radians(-6.24)), False)
sketch4.addGeometry(Part.LineSegment(Vector(45.7, -5, 0), Vector(43.7, -5, 0)), False)
sketch4.addGeometry(Part.ArcOfCircle(Part.Circle(Vector(0, 0, 0), Vector(0, 0, 1), 44), math.radians(-25.01), math.radians(-6.52)), False)
sketch4.addGeometry(Part.ArcOfCircle(Part.Circle(Vector(39, -22.5, 0), Vector(0, 0, 1), 4), math.radians(48), math.radians(77)), False)
sketch4.addGeometry(Part.ArcOfCircle(Part.Circle(Vector(0, 0, 0), Vector(0, 0, 1), 44), math.radians(6.52), math.radians(25.01)), False)
sketch4.addGeometry(Part.LineSegment(Vector(43.7, 5, 0), Vector(45.7, 5, 0)), False)
sketch4.addGeometry(Part.ArcOfCircle(Part.Circle(Vector(0, 0, 0), Vector(0, 0, 1), 46), math.radians(6.24), math.radians(25.12)), False)
sketch4.addGeometry(Part.ArcOfCircle(Part.Circle(Vector(39, 22.5, 0), Vector(0, 0, 1), 4), math.radians(-77), math.radians(-48)), False)
sketch4.addGeometry(Part.ArcOfCircle(Part.Circle(Vector(0, 0, 0), Vector(0, 0, 1), 44), math.radians(35), math.radians(85)), False)
sketch4.addGeometry(Part.ArcOfCircle(Part.Circle(Vector(39, 22.5, 0), Vector(0, 0, 1), 4), math.radians(108), math.radians(137)), False)
sketch4.addGeometry(Part.ArcOfCircle(Part.Circle(Vector(0, 0, 0), Vector(0, 0, 1), 46), math.radians(35), math.radians(85)), False)
sketch4.addGeometry(Part.ArcOfCircle(Part.Circle(Vector(0, 45, 0), Vector(0, 0, 1), 4), math.radians(0), math.radians(12.02)), False)
sketch4.addGeometry(Part.ArcOfCircle(Part.Circle(Vector(0, 45, 0), Vector(0, 0, 1), 4), math.radians(-16.96), math.radians(0)), False)
sketch4.addGeometry(Part.ArcOfCircle(Part.Circle(Vector(0, 0, 0), Vector(0, 0, 1), 46), math.radians(95), math.radians(145)), False)
sketch4.addGeometry(Part.ArcOfCircle(Part.Circle(Vector(-39, 22.5, 0), Vector(0, 0, 1), 4), math.radians(43), math.radians(72)), False)
sketch4.addGeometry(Part.ArcOfCircle(Part.Circle(Vector(0, 0, 0), Vector(0, 0, 1), 44), math.radians(95), math.radians(145)), False)
sketch4.addGeometry(Part.ArcOfCircle(Part.Circle(Vector(0, 45, 0), Vector(0, 0, 1), 4), math.radians(168), math.radians(197)), False)
sketch4.addGeometry(Part.LineSegment(Vector(-45.7, 5, 0), Vector(-43.7, 5, 0)), False)
sketch4.addGeometry(Part.ArcOfCircle(Part.Circle(Vector(0, 0, 0), Vector(0, 0, 1), 44), math.radians(154.99), math.radians(173.48)), False)
sketch4.addGeometry(Part.ArcOfCircle(Part.Circle(Vector(-39, 22.5, 0), Vector(0, 0, 1), 4), math.radians(-132), math.radians(-103)), False)
sketch4.addGeometry(Part.ArcOfCircle(Part.Circle(Vector(0, 0, 0), Vector(0, 0, 1), 46), math.radians(154.88), math.radians(173.76)), False)
sketch4.addConstraint(Sketcher.Constraint("Coincident", 0, 2, 1, 1))
sketch4.addConstraint(Sketcher.Constraint("Coincident", 1, 2, 2, 2))
sketch4.addConstraint(Sketcher.Constraint("Coincident", 2, 1, 3, 2))
sketch4.addConstraint(Sketcher.Constraint("Coincident", 3, 1, 0, 1))
sketch4.addConstraint(Sketcher.Constraint("Coincident", 4, 1, 5, 1))
sketch4.addConstraint(Sketcher.Constraint("Coincident", 5, 2, 6, 2))
sketch4.addConstraint(Sketcher.Constraint("Coincident", 6, 1, 7, 2))
sketch4.addConstraint(Sketcher.Constraint("Coincident", 7, 1, 4, 2))
sketch4.addConstraint(Sketcher.Constraint("Coincident", 8, 1, 9, 1))
sketch4.addConstraint(Sketcher.Constraint("Coincident", 9, 2, 10, 2))
sketch4.addConstraint(Sketcher.Constraint("Coincident", 10, 1, 11, 2))
sketch4.addConstraint(Sketcher.Constraint("Coincident", 11, 1, 12, 2))
sketch4.addConstraint(Sketcher.Constraint("Tangent", 12, 1, 8, 2))
sketch4.addConstraint(Sketcher.Constraint("Coincident", 13, 2, 14, 1))
sketch4.addConstraint(Sketcher.Constraint("Coincident", 14, 2, 15, 2))
sketch4.addConstraint(Sketcher.Constraint("Coincident", 15, 1, 16, 2))
sketch4.addConstraint(Sketcher.Constraint("Coincident", 16, 1, 13, 1))
sketch4.addConstraint(Sketcher.Constraint("Coincident", 17, 1, 18, 1))
sketch4.addConstraint(Sketcher.Constraint("Coincident", 18, 2, 19, 1))
sketch4.addConstraint(Sketcher.Constraint("Coincident", 19, 2, 20, 2))
sketch4.addConstraint(Sketcher.Constraint("Coincident", 20, 1, 17, 2))
sketch4.addConstraint(Sketcher.Constraint("Coincident", 21, 1, 22, 2))
sketch4.addConstraint(Sketcher.Constraint("Coincident", 22, 1, 23, 1))
sketch4.addConstraint(Sketcher.Constraint("Coincident", 23, 2, 24, 2))
sketch4.addConstraint(Sketcher.Constraint("Tangent", 24, 1, 25, 2))
sketch4.addConstraint(Sketcher.Constraint("Coincident", 25, 1, 21, 2))
sketch4.addConstraint(Sketcher.Constraint("Coincident", 26, 2, 27, 2))
sketch4.addConstraint(Sketcher.Constraint("Coincident", 27, 1, 28, 2))
sketch4.addConstraint(Sketcher.Constraint("Coincident", 28, 1, 29, 2))
sketch4.addConstraint(Sketcher.Constraint("Coincident", 29, 1, 26, 1))
sketch4.addConstraint(Sketcher.Constraint("Coincident", 30, 2, 31, 2))
sketch4.addConstraint(Sketcher.Constraint("Coincident", 31, 1, 32, 2))
sketch4.addConstraint(Sketcher.Constraint("Coincident", 32, 1, 33, 1))
sketch4.addConstraint(Sketcher.Constraint("Coincident", 33, 2, 30, 1))
sketch4.addConstraint(Sketcher.Constraint("Horizontal", 0))
sketch4.addConstraint(Sketcher.Constraint("Horizontal", 14))
sketch4.addConstraint(Sketcher.Constraint("Horizontal", 18))
sketch4.addConstraint(Sketcher.Constraint("Horizontal", 30))
sketch4.addConstraint(Sketcher.Constraint("Coincident", 1, 3, -1, 1))
sketch4.addConstraint(Sketcher.Constraint("Coincident", 3, 3, -1, 1))
sketch4.addConstraint(Sketcher.Constraint("Coincident", 5, 3, -1, 1))
sketch4.addConstraint(Sketcher.Constraint("Coincident", 7, 3, -1, 1))
sketch4.addConstraint(Sketcher.Constraint("Coincident", 9, 3, -1, 1))
sketch4.addConstraint(Sketcher.Constraint("Coincident", 11, 3, -1, 1))
sketch4.addConstraint(Sketcher.Constraint("Coincident", 13, 3, -1, 1))
sketch4.addConstraint(Sketcher.Constraint("Coincident", 15, 3, -1, 1))
sketch4.addConstraint(Sketcher.Constraint("Coincident", 17, 3, -1, 1))
sketch4.addConstraint(Sketcher.Constraint("Coincident", 19, 3, -1, 1))
sketch4.addConstraint(Sketcher.Constraint("Coincident", 21, 3, -1, 1))
sketch4.addConstraint(Sketcher.Constraint("Coincident", 23, 3, -1, 1))
sketch4.addConstraint(Sketcher.Constraint("Coincident", 26, 3, -1, 1))
sketch4.addConstraint(Sketcher.Constraint("Coincident", 28, 3, -1, 1))
sketch4.addConstraint(Sketcher.Constraint("Coincident", 31, 3, -1, 1))
sketch4.addConstraint(Sketcher.Constraint("Coincident", 33, 3, -1, 1))
sketch4.addConstraint(Sketcher.Constraint("Coincident", 4, 3, 2, 3))
sketch4.addConstraint(Sketcher.Constraint("Coincident", 8, 3, 6, 3))
sketch4.addConstraint(Sketcher.Constraint("Coincident", 16, 3, 10, 3))
sketch4.addConstraint(Sketcher.Constraint("Coincident", 22, 3, 20, 3))
sketch4.addConstraint(Sketcher.Constraint("Coincident", 29, 3, 24, 3))
sketch4.addConstraint(Sketcher.Constraint("Coincident", 32, 3, 27, 3))
sketch4.addConstraint(Sketcher.Constraint("Equal", 2, 4))
sketch4.addConstraint(Sketcher.Constraint("Equal", 1, 5))
sketch4.addConstraint(Sketcher.Constraint("Equal", 4, 6))
sketch4.addConstraint(Sketcher.Constraint("Equal", 3, 7))
sketch4.addConstraint(Sketcher.Constraint("Equal", 6, 8))
sketch4.addConstraint(Sketcher.Constraint("Equal", 5, 9))
sketch4.addConstraint(Sketcher.Constraint("Equal", 8, 10))
sketch4.addConstraint(Sketcher.Constraint("Equal", 7, 11))
sketch4.addConstraint(Sketcher.Constraint("Equal", 10, 12))
sketch4.addConstraint(Sketcher.Constraint("Equal", 9, 13))
sketch4.addConstraint(Sketcher.Constraint("Equal", 11, 15))
sketch4.addConstraint(Sketcher.Constraint("Equal", 12, 16))
sketch4.addConstraint(Sketcher.Constraint("Equal", 15, 17))
sketch4.addConstraint(Sketcher.Constraint("Equal", 13, 19))
sketch4.addConstraint(Sketcher.Constraint("Equal", 16, 20))
sketch4.addConstraint(Sketcher.Constraint("Equal", 17, 21))
sketch4.addConstraint(Sketcher.Constraint("Equal", 20, 22))
sketch4.addConstraint(Sketcher.Constraint("Equal", 19, 23))
sketch4.addConstraint(Sketcher.Constraint("Equal", 22, 24))
sketch4.addConstraint(Sketcher.Constraint("Equal", 24, 25))
sketch4.addConstraint(Sketcher.Constraint("Equal", 23, 26))
sketch4.addConstraint(Sketcher.Constraint("Equal", 25, 27))
sketch4.addConstraint(Sketcher.Constraint("Equal", 21, 28))
sketch4.addConstraint(Sketcher.Constraint("Equal", 27, 29))
sketch4.addConstraint(Sketcher.Constraint("Equal", 28, 31))
sketch4.addConstraint(Sketcher.Constraint("Equal", 29, 32))
sketch4.addConstraint(Sketcher.Constraint("Equal", 26, 33))
sketch4.addConstraint(Sketcher.Constraint("Symmetric", 2, 3, 20, 3, -1, 1))
sketch4.addConstraint(Sketcher.Constraint("Symmetric", 6, 3, 24, 3, -1, 1))
sketch4.addConstraint(Sketcher.Constraint("Symmetric", 10, 3, 27, 3, -1, 1))
sketch4.addConstraint(Sketcher.Constraint("Symmetric", 2, 3, 10, 3, -2))
sketch4.addConstraint(Sketcher.Constraint("Symmetric", 12, 1, 24, 1, -1))
sketch4.addConstraint(Sketcher.Constraint("Horizontal", 8, 3, 12, 1))
sketch4.addConstraint(Sketcher.Constraint("Horizontal", 3, 1, 13, 2))
sketch4.addConstraint(Sketcher.Constraint("Horizontal", 18, 2, 30, 2))
sketch4.addConstraint(Sketcher.Constraint("Vertical", 14, 2, 17, 1))
sketch4.addConstraint(Sketcher.Constraint("Radius", 1, 46.0))
sketch4.addConstraint(Sketcher.Constraint("Radius", 2, 4.0))
sketch4.addConstraint(Sketcher.Constraint("Radius", 3, 44.0))
sketch4.addConstraint(Sketcher.Constraint("DistanceY", 6, 3, -1, 1, 45.0))
sketch4.addConstraint(Sketcher.Constraint("DistanceY", 0, 2, -1, 1, 5.0))
sketch4.addConstraint(Sketcher.Constraint("DistanceY", 2, 3, -1, 1, 22.5))
sketch4.addConstraint(Sketcher.Constraint("DistanceX", 2, 1, -1, 1, 39.87382))
pad4 = body.newObject("PartDesign::Pad", "Pad003")
pad4.Profile = sketch4
pad4.Length = 23

doc.recompute()
